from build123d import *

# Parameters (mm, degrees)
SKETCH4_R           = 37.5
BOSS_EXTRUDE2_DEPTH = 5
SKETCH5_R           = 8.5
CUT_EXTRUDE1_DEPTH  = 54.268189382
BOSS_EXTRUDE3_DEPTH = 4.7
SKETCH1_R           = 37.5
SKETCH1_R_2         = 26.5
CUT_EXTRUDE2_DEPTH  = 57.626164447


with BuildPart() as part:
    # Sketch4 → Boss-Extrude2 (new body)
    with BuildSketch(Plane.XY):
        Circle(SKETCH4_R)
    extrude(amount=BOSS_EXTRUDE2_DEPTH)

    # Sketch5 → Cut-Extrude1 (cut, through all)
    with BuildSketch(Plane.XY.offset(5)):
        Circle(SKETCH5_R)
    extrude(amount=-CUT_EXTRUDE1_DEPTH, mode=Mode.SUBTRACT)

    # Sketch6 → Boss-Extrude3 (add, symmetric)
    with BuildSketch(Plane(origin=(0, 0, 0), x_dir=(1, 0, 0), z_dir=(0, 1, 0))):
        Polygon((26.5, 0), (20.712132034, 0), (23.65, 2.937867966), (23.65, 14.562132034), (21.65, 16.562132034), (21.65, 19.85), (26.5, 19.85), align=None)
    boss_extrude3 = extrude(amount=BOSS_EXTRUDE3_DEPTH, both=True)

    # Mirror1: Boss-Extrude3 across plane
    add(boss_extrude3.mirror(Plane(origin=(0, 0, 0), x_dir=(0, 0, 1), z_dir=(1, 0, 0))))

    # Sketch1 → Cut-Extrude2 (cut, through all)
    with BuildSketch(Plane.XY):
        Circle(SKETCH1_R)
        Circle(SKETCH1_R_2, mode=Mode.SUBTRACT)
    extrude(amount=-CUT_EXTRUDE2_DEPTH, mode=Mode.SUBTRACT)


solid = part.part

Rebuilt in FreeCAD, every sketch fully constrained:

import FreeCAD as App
import Part
import Sketcher

V = App.Vector
Q = App.Units.Quantity

doc = App.newDocument("Part")
body = doc.addObject("PartDesign::Body", "Body")

# Sketch on XY plane
sketch1 = doc.addObject("Sketcher::SketchObject", "Sketch")
body.addObject(sketch1)
sketch1.AttachmentSupport = (doc.XY_Plane, [""])
sketch1.MapMode = "FlatFace"
sketch1.addGeometry(Part.Circle(V(0, 0, 0), V(0, 0, 1), 38), False)
sketch1.addConstraint([
    Sketcher.Constraint("Coincident", 0, 3, -1, 1),
    Sketcher.Constraint("Diameter", 0, Q("75 mm")),
])
pad1 = doc.addObject("PartDesign::Pad", "Pad")
body.addObject(pad1)
pad1.Profile = sketch1
pad1.Length = 5

# Sketch on XY plane
sketch2 = doc.addObject("Sketcher::SketchObject", "Sketch001")
body.addObject(sketch2)
sketch2.AttachmentSupport = (doc.XY_Plane, [""])
sketch2.MapMode = "FlatFace"
sketch2.AttachmentOffset = App.Placement(V(0, 0, 5), App.Rotation())
sketch2.addGeometry(Part.Circle(V(0, 0, 0), V(0, 0, 1), 8), False)
sketch2.addConstraint([
    Sketcher.Constraint("Coincident", 0, 3, -1, 1),
    Sketcher.Constraint("Diameter", 0, Q("17 mm")),
])
pocket1 = doc.addObject("PartDesign::Pocket", "Pocket")
body.addObject(pocket1)
pocket1.Profile = sketch2
pocket1.Type = "ThroughAll"

# Sketch on XZ plane
sketch3 = doc.addObject("Sketcher::SketchObject", "Sketch002")
body.addObject(sketch3)
sketch3.AttachmentSupport = (doc.XZ_Plane, [""])
sketch3.MapMode = "FlatFace"
sketch3.addGeometry([
    Part.LineSegment(V(20.7, 0, 0), V(26.5, 0, 0)),  # 0
    Part.LineSegment(V(26.5, 0, 0), V(26.5, -19.9, 0)),  # 1
    Part.LineSegment(V(26.5, -19.9, 0), V(21.6, -19.9, 0)),  # 2
    Part.LineSegment(V(21.6, -19.9, 0), V(21.6, -16.6, 0)),  # 3
    Part.LineSegment(V(21.6, -16.6, 0), V(23.6, -14.6, 0)),  # 4
    Part.LineSegment(V(23.6, -14.6, 0), V(23.6, -2.9, 0)),  # 5
    Part.LineSegment(V(23.6, -2.9, 0), V(20.7, 0, 0)),  # 6
], False)
sketch3.addConstraint([
    Sketcher.Constraint("Coincident", 0, 2, 1, 1),
    Sketcher.Constraint("Coincident", 1, 2, 2, 1),
    Sketcher.Constraint("Coincident", 2, 2, 3, 1),
    Sketcher.Constraint("Coincident", 3, 2, 4, 1),
    Sketcher.Constraint("Coincident", 4, 2, 5, 1),
    Sketcher.Constraint("Coincident", 5, 2, 6, 1),
    Sketcher.Constraint("Coincident", 6, 2, 0, 1),
    Sketcher.Constraint("Horizontal", 0),
    Sketcher.Constraint("Vertical", 1),
    Sketcher.Constraint("Horizontal", 2),
    Sketcher.Constraint("Vertical", 3),
    Sketcher.Constraint("Vertical", 5),
    Sketcher.Constraint("PointOnObject", 0, 2, -1),
    Sketcher.Constraint("Perpendicular", 4, 6),
    Sketcher.Constraint("Angle", 4, Q("45 deg")),
    Sketcher.Constraint("DistanceX", 3, 2, 4, 2, Q("2 mm")),
    Sketcher.Constraint("DistanceX", 2, 2, 2, 1, Q("4.85 mm")),
    Sketcher.Constraint("DistanceY", 1, 2, 1, 1, Q("19.85 mm")),
    Sketcher.Constraint("DistanceX", -1, 1, 0, 2, Q("26.5 mm")),
    Sketcher.Constraint("DistanceX", 0, 1, 0, 2, Q("5.787868 mm")),
    Sketcher.Constraint("DistanceY", 3, 1, 3, 2, Q("3.287868 mm")),
])
pad2 = doc.addObject("PartDesign::Pad", "Pad001")
body.addObject(pad2)
pad2.Profile = sketch3
pad2.Length = 9.4
pad2.Midplane = True
doc.recompute()

mirrored = doc.addObject("PartDesign::Mirrored", "Mirrored")
body.addObject(mirrored)
mirrored.Originals = [pad2]
mirrored.MirrorPlane = (doc.YZ_Plane, [""])
body.Tip = mirrored

# Sketch on XY plane
sketch4 = doc.addObject("Sketcher::SketchObject", "Sketch003")
body.addObject(sketch4)
sketch4.AttachmentSupport = (doc.XY_Plane, [""])
sketch4.MapMode = "FlatFace"
sketch4.addGeometry([
    Part.Circle(V(0, 0, 0), V(0, 0, 1), 38),
    Part.Circle(V(0, 0, 0), V(0, 0, 1), 26),
], False)
sketch4.addConstraint([
    Sketcher.Constraint("Coincident", 0, 3, -1, 1),
    Sketcher.Constraint("Coincident", 1, 3, -1, 1),
    Sketcher.Constraint("Diameter", 0, Q("75 mm")),
    Sketcher.Constraint("Diameter", 1, Q("53 mm")),
])
pocket2 = doc.addObject("PartDesign::Pocket", "Pocket001")
body.addObject(pocket2)
pocket2.Profile = sketch4
pocket2.Type = "ThroughAll"

doc.recompute()
